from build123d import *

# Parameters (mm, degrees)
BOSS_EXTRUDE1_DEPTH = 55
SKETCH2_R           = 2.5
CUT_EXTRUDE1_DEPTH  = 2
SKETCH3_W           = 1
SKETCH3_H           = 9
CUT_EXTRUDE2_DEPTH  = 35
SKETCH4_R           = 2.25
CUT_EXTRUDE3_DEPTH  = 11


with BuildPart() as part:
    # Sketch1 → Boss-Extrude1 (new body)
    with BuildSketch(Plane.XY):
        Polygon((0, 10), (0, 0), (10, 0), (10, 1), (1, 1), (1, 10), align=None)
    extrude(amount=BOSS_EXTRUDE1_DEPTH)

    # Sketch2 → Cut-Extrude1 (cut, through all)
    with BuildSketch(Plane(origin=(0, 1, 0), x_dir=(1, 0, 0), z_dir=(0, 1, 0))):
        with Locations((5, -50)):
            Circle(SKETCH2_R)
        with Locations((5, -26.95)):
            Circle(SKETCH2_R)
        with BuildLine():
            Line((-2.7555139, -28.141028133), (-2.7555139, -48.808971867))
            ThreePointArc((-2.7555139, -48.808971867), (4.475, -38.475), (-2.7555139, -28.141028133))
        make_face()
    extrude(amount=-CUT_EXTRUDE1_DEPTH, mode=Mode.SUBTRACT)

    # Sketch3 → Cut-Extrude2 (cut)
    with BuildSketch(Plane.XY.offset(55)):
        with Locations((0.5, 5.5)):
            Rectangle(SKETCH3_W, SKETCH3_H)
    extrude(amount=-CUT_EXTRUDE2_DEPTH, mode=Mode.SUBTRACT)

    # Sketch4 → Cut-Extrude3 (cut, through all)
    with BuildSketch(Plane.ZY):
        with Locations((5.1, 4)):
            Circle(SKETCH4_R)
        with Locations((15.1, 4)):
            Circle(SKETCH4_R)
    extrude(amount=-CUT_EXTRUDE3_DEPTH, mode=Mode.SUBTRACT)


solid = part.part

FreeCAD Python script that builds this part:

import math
import FreeCAD as App
import Part
import Sketcher
from FreeCAD import Vector
Q = App.Units.Quantity


def add_polygon(sketch, points):
    """Adds a closed chain of lines whose ends are joined by coincident constraints."""
    first, n = sketch.GeometryCount, len(points)
    for a, b in zip(points, points[1:] + points[:1]):
        sketch.addGeometry(Part.LineSegment(App.Vector(*a, 0), App.Vector(*b, 0)), False)
    for i in range(n):
        sketch.addConstraint(Sketcher.Constraint("Coincident", first + i, 2, first + (i + 1) % n, 1))

doc = App.newDocument("Part")
params = doc.addObject("Spreadsheet::Sheet", "Params")
for row, (alias, value) in enumerate([
    ("sketch1_width", "10 mm"),
    ("sketch1_width2", "9 mm"),
    ("pad1_length", "55 mm"),
    ("sketch2_diameter", "5 mm"),
    ("sketch2_radius", "11 mm"),
    ("sketch3_width", "1 mm"),
    ("sketch3_height", "9 mm"),
    ("pocket2_length", "35 mm"),
    ("sketch4_diameter", "4.5 mm"),
], start=1):
    params.set(f"A{row}", alias)
    params.set(f"B{row}", "=" + value)
    params.setAlias(f"B{row}", alias)

body = doc.addObject("PartDesign::Body", "Body")

# Sketch on XY plane
sketch1 = doc.addObject("Sketcher::SketchObject", "Sketch")
body.addObject(sketch1)
sketch1.AttachmentSupport = (doc.XY_Plane, [""])
sketch1.MapMode = "FlatFace"
add_polygon(sketch1, [(0, 10), (0, 0), (10, 0), (10, 1), (1, 1), (1, 10)])  # lines 0-5
sketch1.addConstraint([
    Sketcher.Constraint("Vertical", 0),
    Sketcher.Constraint("Horizontal", 1),
    Sketcher.Constraint("Vertical", 2),
    Sketcher.Constraint("Horizontal", 3),
    Sketcher.Constraint("Vertical", 4),
    Sketcher.Constraint("Horizontal", 5),
    Sketcher.Constraint("Coincident", 0, 2, -1, 1),
    Sketcher.Constraint("Equal", 1, 0),
    Sketcher.Constraint("Equal", 5, 2),
    Sketcher.Constraint("DistanceX", 1, 1, 1, 2, Q("10 mm")),
    Sketcher.Constraint("DistanceX", 3, 2, 3, 1, Q("9 mm")),
])
sketch1.setExpression("Constraints[15]", "Params.sketch1_width")
sketch1.setExpression("Constraints[16]", "Params.sketch1_width2")
pad1 = doc.addObject("PartDesign::Pad", "Pad")
body.addObject(pad1)
pad1.Profile = sketch1
pad1.setExpression("Length", "Params.pad1_length")

# Sketch on XZ plane
sketch2 = doc.addObject("Sketcher::SketchObject", "Sketch001")
body.addObject(sketch2)
sketch2.AttachmentSupport = (doc.XZ_Plane, [""])
sketch2.MapMode = "FlatFace"
sketch2.AttachmentOffset = App.Placement(Vector(0, 0, -1), App.Rotation())
sketch2.addGeometry([
    Part.Circle(Vector(5, 50, 0), Vector(0, 0, 1), 2.5),
    Part.Circle(Vector(5, 26.9, 0), Vector(0, 0, 1), 2.5),
    Part.LineSegment(Vector(-2.8, 28.1, 0), Vector(-2.8, 48.8, 0)),
    Part.ArcOfCircle(Part.Circle(Vector(-6.5, 38.5, 0), Vector(0, 0, 1), 11), math.radians(-70), math.radians(70)),
], False)
sketch2.addConstraint([
    Sketcher.Constraint("Coincident", 2, 1, 3, 1),
    Sketcher.Constraint("Coincident", 3, 2, 2, 2),
    Sketcher.Constraint("Vertical", 2),
    Sketcher.Constraint("Equal", 0, 1),
    Sketcher.Constraint("Vertical", 0, 3, 1, 3),
    Sketcher.Constraint("Diameter", 0, Q("5 mm")),
    Sketcher.Constraint("Radius", 3, Q("11 mm")),
    Sketcher.Constraint("DistanceX", -1, 1, 0, 3, Q("5 mm")),
    Sketcher.Constraint("DistanceY", -1, 1, 0, 3, Q("50 mm")),
    Sketcher.Constraint("DistanceY", -1, 1, 1, 3, Q("26.95 mm")),
    Sketcher.Constraint("DistanceX", 3, 3, -1, 1, Q("6.525 mm")),
    Sketcher.Constraint("DistanceY", -1, 1, 3, 3, Q("38.475 mm")),
    Sketcher.Constraint("DistanceY", 2, 1, 2, 2, Q("20.667944 mm")),
])
sketch2.setExpression("Constraints[5]", "Params.sketch2_diameter")
sketch2.setExpression("Constraints[6]", "Params.sketch2_radius")
pocket1 = doc.addObject("PartDesign::Pocket", "Pocket")
body.addObject(pocket1)
pocket1.Profile = sketch2
pocket1.Type = "ThroughAll"
pocket1.Reversed = True

# Sketch on XY plane
sketch3 = doc.addObject("Sketcher::SketchObject", "Sketch002")
body.addObject(sketch3)
sketch3.AttachmentSupport = (doc.XY_Plane, [""])
sketch3.MapMode = "FlatFace"
sketch3.AttachmentOffset = App.Placement(Vector(0, 0, 55), App.Rotation())
add_polygon(sketch3, [(0, 10), (0, 1), (1, 1), (1, 10)])  # lines 0-3
sketch3.addConstraint([
    Sketcher.Constraint("Vertical", 0),
    Sketcher.Constraint("Horizontal", 1),
    Sketcher.Constraint("Vertical", 2),
    Sketcher.Constraint("Horizontal", 3),
    Sketcher.Constraint("PointOnObject", 0, 2, -2),
    Sketcher.Constraint("DistanceX", 1, 1, 1, 2, Q("1 mm")),
    Sketcher.Constraint("DistanceY", 0, 2, 0, 1, Q("9 mm")),
    Sketcher.Constraint("DistanceY", -1, 1, 0, 2, Q("1 mm")),
])
sketch3.setExpression("Constraints[9]", "Params.sketch3_width")
sketch3.setExpression("Constraints[10]", "Params.sketch3_height")
pocket2 = doc.addObject("PartDesign::Pocket", "Pocket001")
body.addObject(pocket2)
pocket2.Profile = sketch3
pocket2.setExpression("Length", "Params.pocket2_length")

# Sketch on YZ plane
sketch4 = doc.addObject("Sketcher::SketchObject", "Sketch003")
body.addObject(sketch4)
sketch4.AttachmentSupport = (doc.YZ_Plane, [""])
sketch4.MapMode = "FlatFace"
sketch4.addGeometry([
    Part.Circle(Vector(4, 5.1, 0), Vector(0, 0, 1), 2.2),
    Part.Circle(Vector(4, 15.1, 0), Vector(0, 0, 1), 2.2),
], False)
sketch4.addConstraint([
    Sketcher.Constraint("Equal", 0, 1),
    Sketcher.Constraint("Vertical", 0, 3, 1, 3),
    Sketcher.Constraint("Diameter", 0, Q("4.5 mm")),
    Sketcher.Constraint("DistanceX", -1, 1, 0, 3, Q("4 mm")),
    Sketcher.Constraint("DistanceY", 0, 3, 1, 3, Q("10 mm")),
    Sketcher.Constraint("DistanceY", -1, 1, 0, 3, Q("5.1 mm")),
])
sketch4.setExpression("Constraints[2]", "Params.sketch4_diameter")
pocket3 = doc.addObject("PartDesign::Pocket", "Pocket002")
body.addObject(pocket3)
pocket3.Profile = sketch4
pocket3.Type = "ThroughAll"
pocket3.Reversed = True

doc.recompute()
